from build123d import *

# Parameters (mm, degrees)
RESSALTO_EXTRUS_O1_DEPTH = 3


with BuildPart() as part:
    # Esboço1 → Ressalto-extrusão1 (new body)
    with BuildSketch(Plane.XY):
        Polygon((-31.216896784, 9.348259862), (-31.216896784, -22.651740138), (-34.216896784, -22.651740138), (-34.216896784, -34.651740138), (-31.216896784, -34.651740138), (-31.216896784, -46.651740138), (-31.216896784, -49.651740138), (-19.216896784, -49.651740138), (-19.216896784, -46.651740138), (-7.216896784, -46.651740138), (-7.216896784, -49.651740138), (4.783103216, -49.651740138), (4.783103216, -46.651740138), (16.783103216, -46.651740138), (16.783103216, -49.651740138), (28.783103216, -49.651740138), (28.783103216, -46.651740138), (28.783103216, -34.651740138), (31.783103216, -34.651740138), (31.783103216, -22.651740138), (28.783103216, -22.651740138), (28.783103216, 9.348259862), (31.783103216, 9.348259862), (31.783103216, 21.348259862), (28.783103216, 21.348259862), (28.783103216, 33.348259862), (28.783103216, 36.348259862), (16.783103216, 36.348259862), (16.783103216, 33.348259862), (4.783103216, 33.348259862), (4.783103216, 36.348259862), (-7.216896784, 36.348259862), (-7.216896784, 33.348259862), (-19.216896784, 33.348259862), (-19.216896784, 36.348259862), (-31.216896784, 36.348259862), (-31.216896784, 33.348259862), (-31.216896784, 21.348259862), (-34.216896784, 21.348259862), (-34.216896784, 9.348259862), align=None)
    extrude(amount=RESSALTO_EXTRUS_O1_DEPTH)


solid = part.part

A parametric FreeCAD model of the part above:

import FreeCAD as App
import Part
import Sketcher


def add_polygon(sketch, points):
    """Adds a closed chain of lines whose ends are joined by coincident constraints."""
    first, n = sketch.GeometryCount, len(points)
    for a, b in zip(points, points[1:] + points[:1]):
        sketch.addGeometry(Part.LineSegment(App.Vector(*a, 0), App.Vector(*b, 0)), False)
    for i in range(n):
        sketch.addConstraint(Sketcher.Constraint("Coincident", first + i, 2, first + (i + 1) % n, 1))

doc = App.newDocument("Part")
body = doc.addObject("PartDesign::Body", "Body")

sketch1 = body.newObject("Sketcher::SketchObject", "Sketch")
sketch1.AttachmentSupport = (doc.getObject("XY_Plane"), [""])
sketch1.MapMode = "FlatFace"
add_polygon(sketch1, [(-31.2, 9.3), (-31.2, -22.7), (-34.2, -22.7), (-34.2, -34.7), (-31.2, -34.7), (-31.2, -49.7), (-19.2, -49.7), (-19.2, -46.7), (-7.2, -46.7), (-7.2, -49.7), (4.8, -49.7), (4.8, -46.7), (16.8, -46.7), (16.8, -49.7), (28.8, -49.7), (28.8, -34.7), (31.8, -34.7), (31.8, -22.7), (28.8, -22.7), (28.8, 9.3), (31.8, 9.3), (31.8, 21.3), (28.8, 21.3), (28.8, 36.3), (16.8, 36.3), (16.8, 33.3), (4.8, 33.3), (4.8, 36.3), (-7.2, 36.3), (-7.2, 33.3), (-19.2, 33.3), (-19.2, 36.3), (-31.2, 36.3), (-31.2, 21.3), (-34.2, 21.3), (-34.2, 9.3)])
sketch1.addConstraint(Sketcher.Constraint("Vertical", 0))
sketch1.addConstraint(Sketcher.Constraint("Horizontal", 1))
sketch1.addConstraint(Sketcher.Constraint("Vertical", 2))
sketch1.addConstraint(Sketcher.Constraint("Horizontal", 3))
sketch1.addConstraint(Sketcher.Constraint("Vertical", 4))
sketch1.addConstraint(Sketcher.Constraint("Horizontal", 5))
sketch1.addConstraint(Sketcher.Constraint("Vertical", 6))
sketch1.addConstraint(Sketcher.Constraint("Horizontal", 7))
sketch1.addConstraint(Sketcher.Constraint("Vertical", 8))
sketch1.addConstraint(Sketcher.Constraint("Horizontal", 9))
sketch1.addConstraint(Sketcher.Constraint("Vertical", 10))
sketch1.addConstraint(Sketcher.Constraint("Horizontal", 11))
sketch1.addConstraint(Sketcher.Constraint("Vertical", 12))
sketch1.addConstraint(Sketcher.Constraint("Horizontal", 13))
sketch1.addConstraint(Sketcher.Constraint("Vertical", 14))
sketch1.addConstraint(Sketcher.Constraint("Horizontal", 15))
sketch1.addConstraint(Sketcher.Constraint("Vertical", 16))
sketch1.addConstraint(Sketcher.Constraint("Horizontal", 17))
sketch1.addConstraint(Sketcher.Constraint("Vertical", 18))
sketch1.addConstraint(Sketcher.Constraint("Horizontal", 19))
sketch1.addConstraint(Sketcher.Constraint("Vertical", 20))
sketch1.addConstraint(Sketcher.Constraint("Horizontal", 21))
sketch1.addConstraint(Sketcher.Constraint("Vertical", 22))
sketch1.addConstraint(Sketcher.Constraint("Horizontal", 23))
sketch1.addConstraint(Sketcher.Constraint("Vertical", 24))
sketch1.addConstraint(Sketcher.Constraint("Horizontal", 25))
sketch1.addConstraint(Sketcher.Constraint("Vertical", 26))
sketch1.addConstraint(Sketcher.Constraint("Horizontal", 27))
sketch1.addConstraint(Sketcher.Constraint("Vertical", 28))
sketch1.addConstraint(Sketcher.Constraint("Horizontal", 29))
sketch1.addConstraint(Sketcher.Constraint("Vertical", 30))
sketch1.addConstraint(Sketcher.Constraint("Horizontal", 31))
sketch1.addConstraint(Sketcher.Constraint("Vertical", 32))
sketch1.addConstraint(Sketcher.Constraint("Horizontal", 33))
sketch1.addConstraint(Sketcher.Constraint("Vertical", 34))
sketch1.addConstraint(Sketcher.Constraint("Horizontal", 35))
sketch1.addConstraint(Sketcher.Constraint("Horizontal", 5, 2, 8, 2))
sketch1.addConstraint(Sketcher.Constraint("Horizontal", 7, 2, 10, 2))
sketch1.addConstraint(Sketcher.Constraint("Horizontal", 9, 2, 12, 2))
sketch1.addConstraint(Sketcher.Constraint("Horizontal", 3, 2, 14, 2))
sketch1.addConstraint(Sketcher.Constraint("Horizontal", 1, 2, 16, 2))
sketch1.addConstraint(Sketcher.Constraint("Horizontal", 23, 2, 26, 2))
sketch1.addConstraint(Sketcher.Constraint("Horizontal", 25, 2, 28, 2))
sketch1.addConstraint(Sketcher.Constraint("Horizontal", 27, 2, 30, 2))
sketch1.addConstraint(Sketcher.Constraint("Horizontal", 21, 2, 32, 2))
sketch1.addConstraint(Sketcher.Constraint("Horizontal", 19, 2, 34, 2))
sketch1.addConstraint(Sketcher.Constraint("Vertical", 0, 2, 3, 2))
sketch1.addConstraint(Sketcher.Constraint("Vertical", 14, 2, 17, 2))
sketch1.addConstraint(Sketcher.Constraint("Vertical", 16, 2, 19, 2))
sketch1.addConstraint(Sketcher.Constraint("Vertical", 18, 2, 21, 2))
sketch1.addConstraint(Sketcher.Constraint("Vertical", 12, 2, 23, 2))
sketch1.addConstraint(Sketcher.Constraint("Vertical", 10, 2, 25, 2))
sketch1.addConstraint(Sketcher.Constraint("Vertical", 8, 2, 27, 2))
sketch1.addConstraint(Sketcher.Constraint("Vertical", 6, 2, 29, 2))
sketch1.addConstraint(Sketcher.Constraint("Vertical", 4, 2, 31, 2))
sketch1.addConstraint(Sketcher.Constraint("Vertical", 2, 2, 33, 2))
sketch1.addConstraint(Sketcher.Constraint("Equal", 5, 7))
sketch1.addConstraint(Sketcher.Constraint("Equal", 7, 9))
sketch1.addConstraint(Sketcher.Constraint("Equal", 9, 11))
sketch1.addConstraint(Sketcher.Constraint("Equal", 11, 13))
sketch1.addConstraint(Sketcher.Constraint("Equal", 3, 15))
sketch1.addConstraint(Sketcher.Constraint("Equal", 31, 2))
sketch1.addConstraint(Sketcher.Constraint("Equal", 35, 6))
sketch1.addConstraint(Sketcher.Constraint("Equal", 16, 20))
sketch1.addConstraint(Sketcher.Constraint("Equal", 14, 22))
sketch1.addConstraint(Sketcher.Constraint("Equal", 12, 24))
sketch1.addConstraint(Sketcher.Constraint("DistanceX", 1, 2, 1, 1, 3.0))
sketch1.addConstraint(Sketcher.Constraint("DistanceX", 5, 1, 5, 2, 12.0))
sketch1.addConstraint(Sketcher.Constraint("DistanceY", 0, 2, 0, 1, 32.0))
sketch1.addConstraint(Sketcher.Constraint("DistanceY", 4, 2, 4, 1, 15.0))
sketch1.addConstraint(Sketcher.Constraint("DistanceY", 0, 2, -1, 1, 22.65174))
sketch1.addConstraint(Sketcher.Constraint("DistanceX", 0, 2, -1, 1, 31.216897))
pad1 = body.newObject("PartDesign::Pad", "Pad")
pad1.Profile = sketch1
pad1.Length = 3

doc.recompute()
